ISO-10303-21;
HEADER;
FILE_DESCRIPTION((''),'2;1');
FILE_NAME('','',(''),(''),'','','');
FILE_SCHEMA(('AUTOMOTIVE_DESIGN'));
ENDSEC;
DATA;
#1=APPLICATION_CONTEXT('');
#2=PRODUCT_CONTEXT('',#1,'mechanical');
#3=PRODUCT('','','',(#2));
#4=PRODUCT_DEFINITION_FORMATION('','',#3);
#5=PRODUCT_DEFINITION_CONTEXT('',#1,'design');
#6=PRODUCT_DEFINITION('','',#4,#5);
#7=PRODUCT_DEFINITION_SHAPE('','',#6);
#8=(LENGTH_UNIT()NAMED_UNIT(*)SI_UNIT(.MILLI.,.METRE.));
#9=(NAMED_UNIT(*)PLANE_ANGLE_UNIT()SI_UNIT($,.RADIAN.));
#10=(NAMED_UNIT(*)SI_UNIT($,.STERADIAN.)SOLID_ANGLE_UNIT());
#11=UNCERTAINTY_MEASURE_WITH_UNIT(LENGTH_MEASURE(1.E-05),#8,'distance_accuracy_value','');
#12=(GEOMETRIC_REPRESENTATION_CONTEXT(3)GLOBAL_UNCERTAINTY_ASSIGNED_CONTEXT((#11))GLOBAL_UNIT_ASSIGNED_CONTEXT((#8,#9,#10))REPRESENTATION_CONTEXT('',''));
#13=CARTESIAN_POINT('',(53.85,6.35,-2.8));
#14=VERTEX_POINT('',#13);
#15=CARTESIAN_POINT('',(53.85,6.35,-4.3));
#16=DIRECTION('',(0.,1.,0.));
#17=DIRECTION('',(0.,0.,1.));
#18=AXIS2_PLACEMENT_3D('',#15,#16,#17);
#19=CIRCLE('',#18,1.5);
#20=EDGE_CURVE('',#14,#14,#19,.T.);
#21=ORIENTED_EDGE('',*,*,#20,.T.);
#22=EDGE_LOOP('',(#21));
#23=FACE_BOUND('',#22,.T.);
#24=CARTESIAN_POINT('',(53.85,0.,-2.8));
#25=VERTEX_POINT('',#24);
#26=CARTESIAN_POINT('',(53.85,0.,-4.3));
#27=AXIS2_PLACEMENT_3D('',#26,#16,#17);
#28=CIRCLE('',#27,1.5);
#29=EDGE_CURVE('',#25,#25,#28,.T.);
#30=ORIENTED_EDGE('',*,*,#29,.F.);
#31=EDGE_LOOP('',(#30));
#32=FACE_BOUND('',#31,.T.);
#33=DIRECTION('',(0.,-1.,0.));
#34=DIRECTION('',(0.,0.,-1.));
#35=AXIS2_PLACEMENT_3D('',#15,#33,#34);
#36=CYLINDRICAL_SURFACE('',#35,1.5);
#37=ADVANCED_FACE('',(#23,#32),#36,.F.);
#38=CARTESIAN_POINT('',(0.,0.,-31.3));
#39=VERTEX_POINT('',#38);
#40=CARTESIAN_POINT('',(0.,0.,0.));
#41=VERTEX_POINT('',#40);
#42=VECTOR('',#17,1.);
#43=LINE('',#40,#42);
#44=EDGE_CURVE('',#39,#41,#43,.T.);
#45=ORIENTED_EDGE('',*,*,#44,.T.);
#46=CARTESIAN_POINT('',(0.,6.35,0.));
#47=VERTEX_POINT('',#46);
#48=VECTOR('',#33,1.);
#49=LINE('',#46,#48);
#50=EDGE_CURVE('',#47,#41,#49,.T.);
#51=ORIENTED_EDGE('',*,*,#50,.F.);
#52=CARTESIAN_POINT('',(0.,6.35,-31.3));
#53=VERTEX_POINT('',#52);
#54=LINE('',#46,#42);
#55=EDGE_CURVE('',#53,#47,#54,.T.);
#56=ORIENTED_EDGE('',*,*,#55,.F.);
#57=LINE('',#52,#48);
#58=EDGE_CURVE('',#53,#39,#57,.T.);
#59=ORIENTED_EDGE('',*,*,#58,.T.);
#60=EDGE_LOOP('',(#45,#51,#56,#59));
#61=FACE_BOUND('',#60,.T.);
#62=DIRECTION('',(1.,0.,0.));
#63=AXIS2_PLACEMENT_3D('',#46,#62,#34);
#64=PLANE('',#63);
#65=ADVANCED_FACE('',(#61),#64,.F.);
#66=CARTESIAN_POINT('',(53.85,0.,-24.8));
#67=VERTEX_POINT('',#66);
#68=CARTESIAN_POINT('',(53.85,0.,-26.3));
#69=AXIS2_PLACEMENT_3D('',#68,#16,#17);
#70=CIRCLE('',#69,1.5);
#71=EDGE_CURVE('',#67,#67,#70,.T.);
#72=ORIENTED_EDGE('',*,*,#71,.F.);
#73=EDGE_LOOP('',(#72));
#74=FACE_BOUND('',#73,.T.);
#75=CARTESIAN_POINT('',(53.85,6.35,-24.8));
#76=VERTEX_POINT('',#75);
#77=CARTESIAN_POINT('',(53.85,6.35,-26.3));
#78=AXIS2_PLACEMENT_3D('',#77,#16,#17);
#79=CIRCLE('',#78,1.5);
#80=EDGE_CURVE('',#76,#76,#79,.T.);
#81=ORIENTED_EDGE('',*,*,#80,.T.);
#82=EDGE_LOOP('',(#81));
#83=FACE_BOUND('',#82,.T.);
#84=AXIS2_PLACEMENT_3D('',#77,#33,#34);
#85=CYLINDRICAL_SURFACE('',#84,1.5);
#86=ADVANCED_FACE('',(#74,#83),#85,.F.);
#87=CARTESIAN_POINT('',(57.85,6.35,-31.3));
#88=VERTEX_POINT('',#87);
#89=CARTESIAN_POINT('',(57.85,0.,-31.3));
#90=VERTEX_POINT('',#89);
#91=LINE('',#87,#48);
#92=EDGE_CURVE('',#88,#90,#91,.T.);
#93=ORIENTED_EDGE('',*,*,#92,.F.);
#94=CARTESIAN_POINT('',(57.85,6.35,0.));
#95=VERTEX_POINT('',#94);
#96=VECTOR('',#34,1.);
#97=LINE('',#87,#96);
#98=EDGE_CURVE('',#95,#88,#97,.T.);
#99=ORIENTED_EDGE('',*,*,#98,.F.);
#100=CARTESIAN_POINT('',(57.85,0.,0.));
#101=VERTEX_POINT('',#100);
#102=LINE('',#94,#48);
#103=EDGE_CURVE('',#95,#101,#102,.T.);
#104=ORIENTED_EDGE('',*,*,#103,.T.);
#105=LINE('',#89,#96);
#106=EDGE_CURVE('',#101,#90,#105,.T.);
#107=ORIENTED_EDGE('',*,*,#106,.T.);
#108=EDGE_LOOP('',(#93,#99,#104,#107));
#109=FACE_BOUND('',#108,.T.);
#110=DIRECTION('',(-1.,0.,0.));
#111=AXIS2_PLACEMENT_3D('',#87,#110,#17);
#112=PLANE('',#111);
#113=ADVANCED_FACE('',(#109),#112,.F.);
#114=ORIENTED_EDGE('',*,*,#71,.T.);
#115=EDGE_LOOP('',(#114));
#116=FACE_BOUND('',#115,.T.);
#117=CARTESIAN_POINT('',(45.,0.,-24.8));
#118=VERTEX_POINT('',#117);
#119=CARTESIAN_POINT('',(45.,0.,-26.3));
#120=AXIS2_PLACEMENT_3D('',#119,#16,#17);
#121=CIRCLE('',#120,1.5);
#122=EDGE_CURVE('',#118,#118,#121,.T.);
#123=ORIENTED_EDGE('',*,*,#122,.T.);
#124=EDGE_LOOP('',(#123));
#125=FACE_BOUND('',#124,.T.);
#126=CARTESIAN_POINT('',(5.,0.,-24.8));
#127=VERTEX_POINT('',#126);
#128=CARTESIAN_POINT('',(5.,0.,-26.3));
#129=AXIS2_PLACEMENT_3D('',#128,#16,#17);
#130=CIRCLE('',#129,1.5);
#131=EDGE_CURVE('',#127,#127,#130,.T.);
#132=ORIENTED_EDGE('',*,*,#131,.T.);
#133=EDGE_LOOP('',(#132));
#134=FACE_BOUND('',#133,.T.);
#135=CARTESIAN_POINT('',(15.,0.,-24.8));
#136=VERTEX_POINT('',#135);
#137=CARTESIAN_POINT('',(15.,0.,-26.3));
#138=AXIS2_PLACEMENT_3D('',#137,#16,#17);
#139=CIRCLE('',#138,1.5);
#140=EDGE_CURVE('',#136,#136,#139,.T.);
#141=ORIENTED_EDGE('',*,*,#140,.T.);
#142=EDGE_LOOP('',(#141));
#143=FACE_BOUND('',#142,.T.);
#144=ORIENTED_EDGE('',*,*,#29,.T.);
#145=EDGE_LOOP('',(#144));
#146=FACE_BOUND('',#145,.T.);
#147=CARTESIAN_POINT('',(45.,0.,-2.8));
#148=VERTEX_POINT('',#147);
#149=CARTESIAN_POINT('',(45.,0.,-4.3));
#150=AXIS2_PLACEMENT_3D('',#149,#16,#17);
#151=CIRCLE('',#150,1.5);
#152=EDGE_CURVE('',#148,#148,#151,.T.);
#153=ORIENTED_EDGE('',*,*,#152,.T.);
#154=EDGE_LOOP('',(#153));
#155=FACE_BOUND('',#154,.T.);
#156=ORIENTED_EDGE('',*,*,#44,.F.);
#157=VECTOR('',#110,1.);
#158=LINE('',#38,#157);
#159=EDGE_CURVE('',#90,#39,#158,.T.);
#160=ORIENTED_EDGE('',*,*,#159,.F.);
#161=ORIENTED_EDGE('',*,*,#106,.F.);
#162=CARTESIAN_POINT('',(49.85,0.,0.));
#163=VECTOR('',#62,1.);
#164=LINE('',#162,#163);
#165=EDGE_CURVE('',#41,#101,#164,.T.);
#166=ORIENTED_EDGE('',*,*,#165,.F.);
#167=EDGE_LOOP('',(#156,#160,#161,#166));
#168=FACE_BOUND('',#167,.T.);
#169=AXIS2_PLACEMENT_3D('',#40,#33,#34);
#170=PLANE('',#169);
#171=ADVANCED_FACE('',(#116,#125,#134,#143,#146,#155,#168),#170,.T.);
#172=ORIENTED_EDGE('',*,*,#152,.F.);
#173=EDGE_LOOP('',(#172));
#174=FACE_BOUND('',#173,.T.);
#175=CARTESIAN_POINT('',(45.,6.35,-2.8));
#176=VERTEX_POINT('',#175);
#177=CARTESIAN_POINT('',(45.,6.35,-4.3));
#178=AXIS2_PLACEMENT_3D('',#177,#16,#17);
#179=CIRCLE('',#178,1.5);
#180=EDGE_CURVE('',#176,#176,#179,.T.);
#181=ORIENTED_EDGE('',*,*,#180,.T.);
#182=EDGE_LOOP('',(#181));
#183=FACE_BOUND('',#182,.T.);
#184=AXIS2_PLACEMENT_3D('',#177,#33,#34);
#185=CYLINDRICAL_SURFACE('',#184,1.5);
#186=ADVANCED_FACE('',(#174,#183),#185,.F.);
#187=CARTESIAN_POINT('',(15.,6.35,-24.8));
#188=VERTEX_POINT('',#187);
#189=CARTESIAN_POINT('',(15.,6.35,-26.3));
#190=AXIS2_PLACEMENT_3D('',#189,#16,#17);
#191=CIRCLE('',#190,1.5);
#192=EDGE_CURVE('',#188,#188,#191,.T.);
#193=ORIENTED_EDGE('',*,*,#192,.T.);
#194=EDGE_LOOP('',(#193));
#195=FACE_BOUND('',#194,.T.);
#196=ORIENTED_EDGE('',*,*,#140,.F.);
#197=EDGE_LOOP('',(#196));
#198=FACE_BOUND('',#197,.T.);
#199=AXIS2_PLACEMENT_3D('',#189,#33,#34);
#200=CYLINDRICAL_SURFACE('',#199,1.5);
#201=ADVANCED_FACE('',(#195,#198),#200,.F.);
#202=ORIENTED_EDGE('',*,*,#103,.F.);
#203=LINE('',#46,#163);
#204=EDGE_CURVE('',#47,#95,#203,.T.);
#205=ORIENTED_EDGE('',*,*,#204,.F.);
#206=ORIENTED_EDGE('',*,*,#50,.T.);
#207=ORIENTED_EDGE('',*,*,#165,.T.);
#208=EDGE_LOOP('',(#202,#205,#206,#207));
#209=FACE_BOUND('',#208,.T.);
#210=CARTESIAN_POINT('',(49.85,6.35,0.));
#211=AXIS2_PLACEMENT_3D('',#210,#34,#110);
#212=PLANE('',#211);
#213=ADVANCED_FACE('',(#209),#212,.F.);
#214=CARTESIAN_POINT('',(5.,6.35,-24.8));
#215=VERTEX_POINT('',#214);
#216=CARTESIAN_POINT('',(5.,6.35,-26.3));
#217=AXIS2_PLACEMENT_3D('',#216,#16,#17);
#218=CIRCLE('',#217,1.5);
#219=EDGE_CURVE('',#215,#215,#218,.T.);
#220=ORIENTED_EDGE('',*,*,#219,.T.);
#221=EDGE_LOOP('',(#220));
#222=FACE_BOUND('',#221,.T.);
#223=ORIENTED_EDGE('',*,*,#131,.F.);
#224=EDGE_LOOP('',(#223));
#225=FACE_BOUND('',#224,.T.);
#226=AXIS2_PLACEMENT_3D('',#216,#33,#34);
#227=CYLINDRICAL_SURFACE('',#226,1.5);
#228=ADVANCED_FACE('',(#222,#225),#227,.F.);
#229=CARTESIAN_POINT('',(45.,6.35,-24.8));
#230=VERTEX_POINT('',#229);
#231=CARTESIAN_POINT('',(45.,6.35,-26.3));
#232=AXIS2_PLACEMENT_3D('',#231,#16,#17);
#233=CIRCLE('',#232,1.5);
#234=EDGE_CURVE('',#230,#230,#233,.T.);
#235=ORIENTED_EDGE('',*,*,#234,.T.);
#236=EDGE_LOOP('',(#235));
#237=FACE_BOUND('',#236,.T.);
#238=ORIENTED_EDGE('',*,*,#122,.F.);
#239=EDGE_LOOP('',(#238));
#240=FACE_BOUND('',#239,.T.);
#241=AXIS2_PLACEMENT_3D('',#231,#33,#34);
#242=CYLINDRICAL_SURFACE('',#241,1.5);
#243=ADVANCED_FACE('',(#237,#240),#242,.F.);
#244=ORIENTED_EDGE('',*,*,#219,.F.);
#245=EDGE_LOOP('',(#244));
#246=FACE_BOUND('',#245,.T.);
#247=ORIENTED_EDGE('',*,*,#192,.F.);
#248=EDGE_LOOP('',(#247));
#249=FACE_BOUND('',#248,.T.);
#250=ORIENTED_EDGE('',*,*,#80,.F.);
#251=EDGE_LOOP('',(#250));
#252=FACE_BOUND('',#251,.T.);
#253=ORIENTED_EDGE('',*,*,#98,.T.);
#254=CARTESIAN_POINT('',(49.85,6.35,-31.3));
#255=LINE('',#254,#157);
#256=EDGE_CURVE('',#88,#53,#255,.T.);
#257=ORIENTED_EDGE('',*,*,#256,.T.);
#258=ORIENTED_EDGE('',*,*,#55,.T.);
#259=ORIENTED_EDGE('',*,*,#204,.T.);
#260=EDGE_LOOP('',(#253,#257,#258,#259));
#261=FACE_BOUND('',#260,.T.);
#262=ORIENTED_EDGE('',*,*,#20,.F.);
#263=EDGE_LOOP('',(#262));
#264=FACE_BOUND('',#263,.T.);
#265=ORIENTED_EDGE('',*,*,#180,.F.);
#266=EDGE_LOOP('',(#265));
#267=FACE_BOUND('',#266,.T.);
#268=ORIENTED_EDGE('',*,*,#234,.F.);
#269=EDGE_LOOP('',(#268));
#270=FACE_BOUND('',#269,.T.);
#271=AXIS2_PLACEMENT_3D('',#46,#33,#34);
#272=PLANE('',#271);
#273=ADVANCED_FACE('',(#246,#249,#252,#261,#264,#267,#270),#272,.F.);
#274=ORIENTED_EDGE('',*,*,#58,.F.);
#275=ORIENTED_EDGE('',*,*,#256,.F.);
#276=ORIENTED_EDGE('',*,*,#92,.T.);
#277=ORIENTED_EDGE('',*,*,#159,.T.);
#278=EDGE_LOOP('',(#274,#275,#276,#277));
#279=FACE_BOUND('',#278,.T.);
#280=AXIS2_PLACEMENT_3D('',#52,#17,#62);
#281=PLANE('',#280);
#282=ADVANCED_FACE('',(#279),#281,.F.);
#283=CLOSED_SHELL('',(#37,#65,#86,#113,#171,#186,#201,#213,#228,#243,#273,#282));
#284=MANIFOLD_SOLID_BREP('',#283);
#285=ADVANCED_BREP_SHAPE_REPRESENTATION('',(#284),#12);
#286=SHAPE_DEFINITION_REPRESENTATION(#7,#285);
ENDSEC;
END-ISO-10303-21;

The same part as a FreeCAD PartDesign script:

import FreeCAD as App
import Part
import Sketcher

V = App.Vector

doc = App.newDocument("Part")
params = doc.addObject("Spreadsheet::Sheet", "Params")
for row, (alias, value) in enumerate([
    ("sketch1_diameter", "3 mm"),
    ("sketch1_height", "31.3 mm"),
    ("sketch1_width", "57.85 mm"),
    ("pad1_length", "6.35 mm"),
], start=1):
    params.set(f"A{row}", alias)
    params.set(f"B{row}", "=" + value)
    params.setAlias(f"B{row}", alias)

body = doc.addObject("PartDesign::Body", "Body")

# Sketch on XZ plane
sketch1 = body.newObject("Sketcher::SketchObject", "Sketch")
sketch1.AttachmentSupport = (doc.getObject("XZ_Plane"), [""])
sketch1.MapMode = "FlatFace"
sketch1.addGeometry([
    Part.LineSegment(V(0, 0, 0), V(57.9, 0, 0)),  # 0
    Part.LineSegment(V(57.9, 0, 0), V(57.9, -31.3, 0)),  # 1
    Part.LineSegment(V(57.9, -31.3, 0), V(0, -31.3, 0)),  # 2
    Part.LineSegment(V(0, -31.3, 0), V(0, 0, 0)),  # 3
    Part.Circle(V(45, -4.3, 0), V(0, 0, 1), 1.5),  # 4
    Part.Circle(V(53.9, -4.3, 0), V(0, 0, 1), 1.5),  # 5
    Part.Circle(V(5, -26.3, 0), V(0, 0, 1), 1.5),  # 6
    Part.Circle(V(15, -26.3, 0), V(0, 0, 1), 1.5),  # 7
    Part.Circle(V(45, -26.3, 0), V(0, 0, 1), 1.5),  # 8
    Part.Circle(V(53.9, -26.3, 0), V(0, 0, 1), 1.5),  # 9
], False)
sketch1.addConstraint([
    Sketcher.Constraint("Coincident", 0, 2, 1, 1),
    Sketcher.Constraint("Coincident", 1, 2, 2, 1),
    Sketcher.Constraint("Coincident", 2, 2, 3, 1),
    Sketcher.Constraint("Coincident", 3, 2, 0, 1),
    Sketcher.Constraint("Horizontal", 0),
    Sketcher.Constraint("Vertical", 1),
    Sketcher.Constraint("Horizontal", 2),
    Sketcher.Constraint("Vertical", 3),
    Sketcher.Constraint("Coincident", 3, 2, -1, 1),
    Sketcher.Constraint("Equal", 4, 5),
    Sketcher.Constraint("Equal", 5, 6),
    Sketcher.Constraint("Equal", 6, 7),
    Sketcher.Constraint("Equal", 7, 8),
    Sketcher.Constraint("Equal", 8, 9),
    Sketcher.Constraint("Horizontal", 4, 3, 5, 3),
    Sketcher.Constraint("Horizontal", 6, 3, 7, 3),
    Sketcher.Constraint("Horizontal", 7, 3, 8, 3),
    Sketcher.Constraint("Horizontal", 8, 3, 9, 3),
    Sketcher.Constraint("Vertical", 4, 3, 8, 3),
    Sketcher.Constraint("Vertical", 5, 3, 9, 3),
    Sketcher.Constraint("Diameter", 4, 3.0),
    Sketcher.Constraint("DistanceY", 1, 2, 1, 1, 31.3),
    Sketcher.Constraint("DistanceX", -1, 1, 4, 3, 45.0),
    Sketcher.Constraint("DistanceX", -1, 1, 6, 3, 5.0),
    Sketcher.Constraint("DistanceX", -1, 1, 7, 3, 15.0),
    Sketcher.Constraint("DistanceY", 6, 3, 4, 3, 22.0),
    Sketcher.Constraint("DistanceX", 5, 3, 0, 2, 4.0),
    Sketcher.Constraint("DistanceY", 1, 2, 9, 3, 5.0),
    Sketcher.Constraint("DistanceX", 0, 1, 0, 2, 57.85),
])
sketch1.setExpression("Constraints[20]", "Params.sketch1_diameter")
sketch1.setExpression("Constraints[21]", "Params.sketch1_height")
sketch1.setExpression("Constraints[28]", "Params.sketch1_width")
pad1 = body.newObject("PartDesign::Pad", "Pad")
pad1.Profile = sketch1
pad1.setExpression("Length", "Params.pad1_length")
pad1.Reversed = True

doc.recompute()
